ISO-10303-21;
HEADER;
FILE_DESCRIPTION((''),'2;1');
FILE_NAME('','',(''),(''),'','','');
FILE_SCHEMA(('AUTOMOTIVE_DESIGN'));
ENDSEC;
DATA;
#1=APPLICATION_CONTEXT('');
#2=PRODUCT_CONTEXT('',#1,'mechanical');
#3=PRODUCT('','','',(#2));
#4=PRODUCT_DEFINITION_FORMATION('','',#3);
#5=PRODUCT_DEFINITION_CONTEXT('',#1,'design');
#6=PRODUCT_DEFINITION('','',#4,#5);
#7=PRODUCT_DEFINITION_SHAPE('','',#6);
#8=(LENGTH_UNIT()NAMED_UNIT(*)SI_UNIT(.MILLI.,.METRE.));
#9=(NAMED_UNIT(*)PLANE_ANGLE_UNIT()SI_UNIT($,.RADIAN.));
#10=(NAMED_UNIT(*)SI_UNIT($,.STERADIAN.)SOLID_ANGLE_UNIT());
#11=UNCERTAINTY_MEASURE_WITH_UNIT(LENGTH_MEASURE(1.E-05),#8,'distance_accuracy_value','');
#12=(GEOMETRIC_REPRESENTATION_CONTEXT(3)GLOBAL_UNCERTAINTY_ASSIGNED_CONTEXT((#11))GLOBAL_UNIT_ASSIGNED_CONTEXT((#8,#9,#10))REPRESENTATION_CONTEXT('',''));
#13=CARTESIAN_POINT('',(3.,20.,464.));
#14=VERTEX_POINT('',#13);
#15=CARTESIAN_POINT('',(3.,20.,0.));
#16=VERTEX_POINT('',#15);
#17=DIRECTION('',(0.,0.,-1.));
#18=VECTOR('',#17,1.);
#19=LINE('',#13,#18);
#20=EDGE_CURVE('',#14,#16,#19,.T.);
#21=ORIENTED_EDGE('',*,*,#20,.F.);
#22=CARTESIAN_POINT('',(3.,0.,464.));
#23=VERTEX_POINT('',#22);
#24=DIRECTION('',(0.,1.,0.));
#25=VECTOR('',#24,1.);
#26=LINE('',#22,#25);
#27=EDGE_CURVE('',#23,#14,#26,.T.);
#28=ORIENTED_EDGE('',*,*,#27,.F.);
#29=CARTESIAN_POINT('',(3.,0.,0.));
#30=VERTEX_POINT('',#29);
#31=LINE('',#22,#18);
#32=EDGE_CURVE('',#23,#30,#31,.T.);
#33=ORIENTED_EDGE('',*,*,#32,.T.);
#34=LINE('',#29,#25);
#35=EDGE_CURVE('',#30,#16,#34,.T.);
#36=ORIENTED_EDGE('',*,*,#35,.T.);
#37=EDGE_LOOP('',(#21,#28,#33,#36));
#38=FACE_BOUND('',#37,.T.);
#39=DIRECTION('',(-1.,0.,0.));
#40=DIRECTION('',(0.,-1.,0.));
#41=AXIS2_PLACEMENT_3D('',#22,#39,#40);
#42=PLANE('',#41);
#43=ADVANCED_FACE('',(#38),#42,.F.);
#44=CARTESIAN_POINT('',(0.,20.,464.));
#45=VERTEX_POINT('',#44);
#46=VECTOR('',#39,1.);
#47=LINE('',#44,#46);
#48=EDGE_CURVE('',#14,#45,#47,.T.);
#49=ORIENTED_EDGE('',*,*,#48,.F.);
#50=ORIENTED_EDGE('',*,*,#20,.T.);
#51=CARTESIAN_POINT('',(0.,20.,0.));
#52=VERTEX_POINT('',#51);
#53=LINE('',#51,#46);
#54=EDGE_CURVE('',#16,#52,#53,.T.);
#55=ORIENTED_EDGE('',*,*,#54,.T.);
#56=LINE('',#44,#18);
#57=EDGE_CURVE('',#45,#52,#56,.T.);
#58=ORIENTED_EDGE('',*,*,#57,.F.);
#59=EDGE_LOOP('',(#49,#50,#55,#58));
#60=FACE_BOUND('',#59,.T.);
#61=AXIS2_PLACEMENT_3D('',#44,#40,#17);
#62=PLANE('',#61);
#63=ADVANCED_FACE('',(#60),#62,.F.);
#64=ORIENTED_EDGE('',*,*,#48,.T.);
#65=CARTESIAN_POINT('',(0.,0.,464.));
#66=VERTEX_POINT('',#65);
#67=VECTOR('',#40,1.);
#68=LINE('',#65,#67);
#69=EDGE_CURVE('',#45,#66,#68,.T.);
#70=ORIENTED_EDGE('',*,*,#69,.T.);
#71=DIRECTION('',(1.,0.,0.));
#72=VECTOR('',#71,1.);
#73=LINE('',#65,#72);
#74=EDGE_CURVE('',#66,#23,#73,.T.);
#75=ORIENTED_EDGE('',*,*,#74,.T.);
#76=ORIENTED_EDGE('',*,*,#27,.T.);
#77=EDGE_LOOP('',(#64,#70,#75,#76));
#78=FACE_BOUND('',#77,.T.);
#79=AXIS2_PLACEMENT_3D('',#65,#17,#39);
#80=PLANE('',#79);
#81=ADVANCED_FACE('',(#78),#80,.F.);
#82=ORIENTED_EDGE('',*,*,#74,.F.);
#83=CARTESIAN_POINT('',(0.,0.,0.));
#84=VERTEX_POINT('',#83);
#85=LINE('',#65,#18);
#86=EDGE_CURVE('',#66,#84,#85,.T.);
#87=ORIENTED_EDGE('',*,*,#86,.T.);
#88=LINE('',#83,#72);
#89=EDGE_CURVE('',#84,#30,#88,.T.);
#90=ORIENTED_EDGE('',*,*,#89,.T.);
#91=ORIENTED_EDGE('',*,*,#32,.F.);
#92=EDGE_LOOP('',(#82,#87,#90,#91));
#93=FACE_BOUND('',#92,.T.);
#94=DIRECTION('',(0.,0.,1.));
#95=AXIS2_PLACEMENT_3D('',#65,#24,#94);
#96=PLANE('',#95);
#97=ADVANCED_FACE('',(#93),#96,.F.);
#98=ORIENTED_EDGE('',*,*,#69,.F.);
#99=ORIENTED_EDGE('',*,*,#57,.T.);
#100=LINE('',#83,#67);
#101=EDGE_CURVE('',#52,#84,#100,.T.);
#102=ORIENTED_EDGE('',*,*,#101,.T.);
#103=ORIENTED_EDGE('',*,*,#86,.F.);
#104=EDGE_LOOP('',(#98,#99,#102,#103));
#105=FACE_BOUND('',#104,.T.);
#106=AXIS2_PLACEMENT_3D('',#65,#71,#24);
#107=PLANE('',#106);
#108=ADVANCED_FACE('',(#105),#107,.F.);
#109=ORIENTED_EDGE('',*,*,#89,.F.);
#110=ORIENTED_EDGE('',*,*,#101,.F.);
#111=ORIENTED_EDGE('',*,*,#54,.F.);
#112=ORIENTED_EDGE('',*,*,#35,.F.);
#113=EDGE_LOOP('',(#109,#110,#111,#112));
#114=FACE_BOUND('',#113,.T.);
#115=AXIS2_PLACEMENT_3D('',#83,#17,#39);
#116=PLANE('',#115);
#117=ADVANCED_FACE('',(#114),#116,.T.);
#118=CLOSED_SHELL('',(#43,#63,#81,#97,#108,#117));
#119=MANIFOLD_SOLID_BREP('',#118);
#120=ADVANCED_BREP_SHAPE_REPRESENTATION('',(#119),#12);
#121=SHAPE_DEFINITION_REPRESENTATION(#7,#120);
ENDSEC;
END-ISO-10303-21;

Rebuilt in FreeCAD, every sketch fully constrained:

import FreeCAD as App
import Part
import Sketcher

V = App.Vector
Q = App.Units.Quantity


def add_polygon(sketch, points):
    """Adds a closed chain of lines whose ends are joined by coincident constraints."""
    first, n = sketch.GeometryCount, len(points)
    for a, b in zip(points, points[1:] + points[:1]):
        sketch.addGeometry(Part.LineSegment(App.Vector(*a, 0), App.Vector(*b, 0)), False)
    for i in range(n):
        sketch.addConstraint(Sketcher.Constraint("Coincident", first + i, 2, first + (i + 1) % n, 1))

doc = App.newDocument("Part")
body = doc.addObject("PartDesign::Body", "Body")

# Sketch on XY plane
sketch1 = body.newObject("Sketcher::SketchObject", "Sketch")
sketch1.AttachmentSupport = (doc.getObject("XY_Plane"), [""])
sketch1.MapMode = "FlatFace"
add_polygon(sketch1, [(0, 20), (0, 0), (3, 0), (3, 20)])  # lines 0-3
sketch1.addConstraint(Sketcher.Constraint("Vertical", 0))
sketch1.addConstraint(Sketcher.Constraint("Horizontal", 1))
sketch1.addConstraint(Sketcher.Constraint("Vertical", 2))
sketch1.addConstraint(Sketcher.Constraint("Horizontal", 3))
sketch1.addConstraint(Sketcher.Constraint("Coincident", 0, 2, -1, 1))
sketch1.addConstraint(Sketcher.Constraint("DistanceX", 1, 1, 1, 2, Q("3 mm")))
sketch1.addConstraint(Sketcher.Constraint("DistanceY", 0, 2, 0, 1, Q("20 mm")))
pad1 = body.newObject("PartDesign::Pad", "Pad")
pad1.Profile = sketch1
pad1.Length = 464

doc.recompute()
